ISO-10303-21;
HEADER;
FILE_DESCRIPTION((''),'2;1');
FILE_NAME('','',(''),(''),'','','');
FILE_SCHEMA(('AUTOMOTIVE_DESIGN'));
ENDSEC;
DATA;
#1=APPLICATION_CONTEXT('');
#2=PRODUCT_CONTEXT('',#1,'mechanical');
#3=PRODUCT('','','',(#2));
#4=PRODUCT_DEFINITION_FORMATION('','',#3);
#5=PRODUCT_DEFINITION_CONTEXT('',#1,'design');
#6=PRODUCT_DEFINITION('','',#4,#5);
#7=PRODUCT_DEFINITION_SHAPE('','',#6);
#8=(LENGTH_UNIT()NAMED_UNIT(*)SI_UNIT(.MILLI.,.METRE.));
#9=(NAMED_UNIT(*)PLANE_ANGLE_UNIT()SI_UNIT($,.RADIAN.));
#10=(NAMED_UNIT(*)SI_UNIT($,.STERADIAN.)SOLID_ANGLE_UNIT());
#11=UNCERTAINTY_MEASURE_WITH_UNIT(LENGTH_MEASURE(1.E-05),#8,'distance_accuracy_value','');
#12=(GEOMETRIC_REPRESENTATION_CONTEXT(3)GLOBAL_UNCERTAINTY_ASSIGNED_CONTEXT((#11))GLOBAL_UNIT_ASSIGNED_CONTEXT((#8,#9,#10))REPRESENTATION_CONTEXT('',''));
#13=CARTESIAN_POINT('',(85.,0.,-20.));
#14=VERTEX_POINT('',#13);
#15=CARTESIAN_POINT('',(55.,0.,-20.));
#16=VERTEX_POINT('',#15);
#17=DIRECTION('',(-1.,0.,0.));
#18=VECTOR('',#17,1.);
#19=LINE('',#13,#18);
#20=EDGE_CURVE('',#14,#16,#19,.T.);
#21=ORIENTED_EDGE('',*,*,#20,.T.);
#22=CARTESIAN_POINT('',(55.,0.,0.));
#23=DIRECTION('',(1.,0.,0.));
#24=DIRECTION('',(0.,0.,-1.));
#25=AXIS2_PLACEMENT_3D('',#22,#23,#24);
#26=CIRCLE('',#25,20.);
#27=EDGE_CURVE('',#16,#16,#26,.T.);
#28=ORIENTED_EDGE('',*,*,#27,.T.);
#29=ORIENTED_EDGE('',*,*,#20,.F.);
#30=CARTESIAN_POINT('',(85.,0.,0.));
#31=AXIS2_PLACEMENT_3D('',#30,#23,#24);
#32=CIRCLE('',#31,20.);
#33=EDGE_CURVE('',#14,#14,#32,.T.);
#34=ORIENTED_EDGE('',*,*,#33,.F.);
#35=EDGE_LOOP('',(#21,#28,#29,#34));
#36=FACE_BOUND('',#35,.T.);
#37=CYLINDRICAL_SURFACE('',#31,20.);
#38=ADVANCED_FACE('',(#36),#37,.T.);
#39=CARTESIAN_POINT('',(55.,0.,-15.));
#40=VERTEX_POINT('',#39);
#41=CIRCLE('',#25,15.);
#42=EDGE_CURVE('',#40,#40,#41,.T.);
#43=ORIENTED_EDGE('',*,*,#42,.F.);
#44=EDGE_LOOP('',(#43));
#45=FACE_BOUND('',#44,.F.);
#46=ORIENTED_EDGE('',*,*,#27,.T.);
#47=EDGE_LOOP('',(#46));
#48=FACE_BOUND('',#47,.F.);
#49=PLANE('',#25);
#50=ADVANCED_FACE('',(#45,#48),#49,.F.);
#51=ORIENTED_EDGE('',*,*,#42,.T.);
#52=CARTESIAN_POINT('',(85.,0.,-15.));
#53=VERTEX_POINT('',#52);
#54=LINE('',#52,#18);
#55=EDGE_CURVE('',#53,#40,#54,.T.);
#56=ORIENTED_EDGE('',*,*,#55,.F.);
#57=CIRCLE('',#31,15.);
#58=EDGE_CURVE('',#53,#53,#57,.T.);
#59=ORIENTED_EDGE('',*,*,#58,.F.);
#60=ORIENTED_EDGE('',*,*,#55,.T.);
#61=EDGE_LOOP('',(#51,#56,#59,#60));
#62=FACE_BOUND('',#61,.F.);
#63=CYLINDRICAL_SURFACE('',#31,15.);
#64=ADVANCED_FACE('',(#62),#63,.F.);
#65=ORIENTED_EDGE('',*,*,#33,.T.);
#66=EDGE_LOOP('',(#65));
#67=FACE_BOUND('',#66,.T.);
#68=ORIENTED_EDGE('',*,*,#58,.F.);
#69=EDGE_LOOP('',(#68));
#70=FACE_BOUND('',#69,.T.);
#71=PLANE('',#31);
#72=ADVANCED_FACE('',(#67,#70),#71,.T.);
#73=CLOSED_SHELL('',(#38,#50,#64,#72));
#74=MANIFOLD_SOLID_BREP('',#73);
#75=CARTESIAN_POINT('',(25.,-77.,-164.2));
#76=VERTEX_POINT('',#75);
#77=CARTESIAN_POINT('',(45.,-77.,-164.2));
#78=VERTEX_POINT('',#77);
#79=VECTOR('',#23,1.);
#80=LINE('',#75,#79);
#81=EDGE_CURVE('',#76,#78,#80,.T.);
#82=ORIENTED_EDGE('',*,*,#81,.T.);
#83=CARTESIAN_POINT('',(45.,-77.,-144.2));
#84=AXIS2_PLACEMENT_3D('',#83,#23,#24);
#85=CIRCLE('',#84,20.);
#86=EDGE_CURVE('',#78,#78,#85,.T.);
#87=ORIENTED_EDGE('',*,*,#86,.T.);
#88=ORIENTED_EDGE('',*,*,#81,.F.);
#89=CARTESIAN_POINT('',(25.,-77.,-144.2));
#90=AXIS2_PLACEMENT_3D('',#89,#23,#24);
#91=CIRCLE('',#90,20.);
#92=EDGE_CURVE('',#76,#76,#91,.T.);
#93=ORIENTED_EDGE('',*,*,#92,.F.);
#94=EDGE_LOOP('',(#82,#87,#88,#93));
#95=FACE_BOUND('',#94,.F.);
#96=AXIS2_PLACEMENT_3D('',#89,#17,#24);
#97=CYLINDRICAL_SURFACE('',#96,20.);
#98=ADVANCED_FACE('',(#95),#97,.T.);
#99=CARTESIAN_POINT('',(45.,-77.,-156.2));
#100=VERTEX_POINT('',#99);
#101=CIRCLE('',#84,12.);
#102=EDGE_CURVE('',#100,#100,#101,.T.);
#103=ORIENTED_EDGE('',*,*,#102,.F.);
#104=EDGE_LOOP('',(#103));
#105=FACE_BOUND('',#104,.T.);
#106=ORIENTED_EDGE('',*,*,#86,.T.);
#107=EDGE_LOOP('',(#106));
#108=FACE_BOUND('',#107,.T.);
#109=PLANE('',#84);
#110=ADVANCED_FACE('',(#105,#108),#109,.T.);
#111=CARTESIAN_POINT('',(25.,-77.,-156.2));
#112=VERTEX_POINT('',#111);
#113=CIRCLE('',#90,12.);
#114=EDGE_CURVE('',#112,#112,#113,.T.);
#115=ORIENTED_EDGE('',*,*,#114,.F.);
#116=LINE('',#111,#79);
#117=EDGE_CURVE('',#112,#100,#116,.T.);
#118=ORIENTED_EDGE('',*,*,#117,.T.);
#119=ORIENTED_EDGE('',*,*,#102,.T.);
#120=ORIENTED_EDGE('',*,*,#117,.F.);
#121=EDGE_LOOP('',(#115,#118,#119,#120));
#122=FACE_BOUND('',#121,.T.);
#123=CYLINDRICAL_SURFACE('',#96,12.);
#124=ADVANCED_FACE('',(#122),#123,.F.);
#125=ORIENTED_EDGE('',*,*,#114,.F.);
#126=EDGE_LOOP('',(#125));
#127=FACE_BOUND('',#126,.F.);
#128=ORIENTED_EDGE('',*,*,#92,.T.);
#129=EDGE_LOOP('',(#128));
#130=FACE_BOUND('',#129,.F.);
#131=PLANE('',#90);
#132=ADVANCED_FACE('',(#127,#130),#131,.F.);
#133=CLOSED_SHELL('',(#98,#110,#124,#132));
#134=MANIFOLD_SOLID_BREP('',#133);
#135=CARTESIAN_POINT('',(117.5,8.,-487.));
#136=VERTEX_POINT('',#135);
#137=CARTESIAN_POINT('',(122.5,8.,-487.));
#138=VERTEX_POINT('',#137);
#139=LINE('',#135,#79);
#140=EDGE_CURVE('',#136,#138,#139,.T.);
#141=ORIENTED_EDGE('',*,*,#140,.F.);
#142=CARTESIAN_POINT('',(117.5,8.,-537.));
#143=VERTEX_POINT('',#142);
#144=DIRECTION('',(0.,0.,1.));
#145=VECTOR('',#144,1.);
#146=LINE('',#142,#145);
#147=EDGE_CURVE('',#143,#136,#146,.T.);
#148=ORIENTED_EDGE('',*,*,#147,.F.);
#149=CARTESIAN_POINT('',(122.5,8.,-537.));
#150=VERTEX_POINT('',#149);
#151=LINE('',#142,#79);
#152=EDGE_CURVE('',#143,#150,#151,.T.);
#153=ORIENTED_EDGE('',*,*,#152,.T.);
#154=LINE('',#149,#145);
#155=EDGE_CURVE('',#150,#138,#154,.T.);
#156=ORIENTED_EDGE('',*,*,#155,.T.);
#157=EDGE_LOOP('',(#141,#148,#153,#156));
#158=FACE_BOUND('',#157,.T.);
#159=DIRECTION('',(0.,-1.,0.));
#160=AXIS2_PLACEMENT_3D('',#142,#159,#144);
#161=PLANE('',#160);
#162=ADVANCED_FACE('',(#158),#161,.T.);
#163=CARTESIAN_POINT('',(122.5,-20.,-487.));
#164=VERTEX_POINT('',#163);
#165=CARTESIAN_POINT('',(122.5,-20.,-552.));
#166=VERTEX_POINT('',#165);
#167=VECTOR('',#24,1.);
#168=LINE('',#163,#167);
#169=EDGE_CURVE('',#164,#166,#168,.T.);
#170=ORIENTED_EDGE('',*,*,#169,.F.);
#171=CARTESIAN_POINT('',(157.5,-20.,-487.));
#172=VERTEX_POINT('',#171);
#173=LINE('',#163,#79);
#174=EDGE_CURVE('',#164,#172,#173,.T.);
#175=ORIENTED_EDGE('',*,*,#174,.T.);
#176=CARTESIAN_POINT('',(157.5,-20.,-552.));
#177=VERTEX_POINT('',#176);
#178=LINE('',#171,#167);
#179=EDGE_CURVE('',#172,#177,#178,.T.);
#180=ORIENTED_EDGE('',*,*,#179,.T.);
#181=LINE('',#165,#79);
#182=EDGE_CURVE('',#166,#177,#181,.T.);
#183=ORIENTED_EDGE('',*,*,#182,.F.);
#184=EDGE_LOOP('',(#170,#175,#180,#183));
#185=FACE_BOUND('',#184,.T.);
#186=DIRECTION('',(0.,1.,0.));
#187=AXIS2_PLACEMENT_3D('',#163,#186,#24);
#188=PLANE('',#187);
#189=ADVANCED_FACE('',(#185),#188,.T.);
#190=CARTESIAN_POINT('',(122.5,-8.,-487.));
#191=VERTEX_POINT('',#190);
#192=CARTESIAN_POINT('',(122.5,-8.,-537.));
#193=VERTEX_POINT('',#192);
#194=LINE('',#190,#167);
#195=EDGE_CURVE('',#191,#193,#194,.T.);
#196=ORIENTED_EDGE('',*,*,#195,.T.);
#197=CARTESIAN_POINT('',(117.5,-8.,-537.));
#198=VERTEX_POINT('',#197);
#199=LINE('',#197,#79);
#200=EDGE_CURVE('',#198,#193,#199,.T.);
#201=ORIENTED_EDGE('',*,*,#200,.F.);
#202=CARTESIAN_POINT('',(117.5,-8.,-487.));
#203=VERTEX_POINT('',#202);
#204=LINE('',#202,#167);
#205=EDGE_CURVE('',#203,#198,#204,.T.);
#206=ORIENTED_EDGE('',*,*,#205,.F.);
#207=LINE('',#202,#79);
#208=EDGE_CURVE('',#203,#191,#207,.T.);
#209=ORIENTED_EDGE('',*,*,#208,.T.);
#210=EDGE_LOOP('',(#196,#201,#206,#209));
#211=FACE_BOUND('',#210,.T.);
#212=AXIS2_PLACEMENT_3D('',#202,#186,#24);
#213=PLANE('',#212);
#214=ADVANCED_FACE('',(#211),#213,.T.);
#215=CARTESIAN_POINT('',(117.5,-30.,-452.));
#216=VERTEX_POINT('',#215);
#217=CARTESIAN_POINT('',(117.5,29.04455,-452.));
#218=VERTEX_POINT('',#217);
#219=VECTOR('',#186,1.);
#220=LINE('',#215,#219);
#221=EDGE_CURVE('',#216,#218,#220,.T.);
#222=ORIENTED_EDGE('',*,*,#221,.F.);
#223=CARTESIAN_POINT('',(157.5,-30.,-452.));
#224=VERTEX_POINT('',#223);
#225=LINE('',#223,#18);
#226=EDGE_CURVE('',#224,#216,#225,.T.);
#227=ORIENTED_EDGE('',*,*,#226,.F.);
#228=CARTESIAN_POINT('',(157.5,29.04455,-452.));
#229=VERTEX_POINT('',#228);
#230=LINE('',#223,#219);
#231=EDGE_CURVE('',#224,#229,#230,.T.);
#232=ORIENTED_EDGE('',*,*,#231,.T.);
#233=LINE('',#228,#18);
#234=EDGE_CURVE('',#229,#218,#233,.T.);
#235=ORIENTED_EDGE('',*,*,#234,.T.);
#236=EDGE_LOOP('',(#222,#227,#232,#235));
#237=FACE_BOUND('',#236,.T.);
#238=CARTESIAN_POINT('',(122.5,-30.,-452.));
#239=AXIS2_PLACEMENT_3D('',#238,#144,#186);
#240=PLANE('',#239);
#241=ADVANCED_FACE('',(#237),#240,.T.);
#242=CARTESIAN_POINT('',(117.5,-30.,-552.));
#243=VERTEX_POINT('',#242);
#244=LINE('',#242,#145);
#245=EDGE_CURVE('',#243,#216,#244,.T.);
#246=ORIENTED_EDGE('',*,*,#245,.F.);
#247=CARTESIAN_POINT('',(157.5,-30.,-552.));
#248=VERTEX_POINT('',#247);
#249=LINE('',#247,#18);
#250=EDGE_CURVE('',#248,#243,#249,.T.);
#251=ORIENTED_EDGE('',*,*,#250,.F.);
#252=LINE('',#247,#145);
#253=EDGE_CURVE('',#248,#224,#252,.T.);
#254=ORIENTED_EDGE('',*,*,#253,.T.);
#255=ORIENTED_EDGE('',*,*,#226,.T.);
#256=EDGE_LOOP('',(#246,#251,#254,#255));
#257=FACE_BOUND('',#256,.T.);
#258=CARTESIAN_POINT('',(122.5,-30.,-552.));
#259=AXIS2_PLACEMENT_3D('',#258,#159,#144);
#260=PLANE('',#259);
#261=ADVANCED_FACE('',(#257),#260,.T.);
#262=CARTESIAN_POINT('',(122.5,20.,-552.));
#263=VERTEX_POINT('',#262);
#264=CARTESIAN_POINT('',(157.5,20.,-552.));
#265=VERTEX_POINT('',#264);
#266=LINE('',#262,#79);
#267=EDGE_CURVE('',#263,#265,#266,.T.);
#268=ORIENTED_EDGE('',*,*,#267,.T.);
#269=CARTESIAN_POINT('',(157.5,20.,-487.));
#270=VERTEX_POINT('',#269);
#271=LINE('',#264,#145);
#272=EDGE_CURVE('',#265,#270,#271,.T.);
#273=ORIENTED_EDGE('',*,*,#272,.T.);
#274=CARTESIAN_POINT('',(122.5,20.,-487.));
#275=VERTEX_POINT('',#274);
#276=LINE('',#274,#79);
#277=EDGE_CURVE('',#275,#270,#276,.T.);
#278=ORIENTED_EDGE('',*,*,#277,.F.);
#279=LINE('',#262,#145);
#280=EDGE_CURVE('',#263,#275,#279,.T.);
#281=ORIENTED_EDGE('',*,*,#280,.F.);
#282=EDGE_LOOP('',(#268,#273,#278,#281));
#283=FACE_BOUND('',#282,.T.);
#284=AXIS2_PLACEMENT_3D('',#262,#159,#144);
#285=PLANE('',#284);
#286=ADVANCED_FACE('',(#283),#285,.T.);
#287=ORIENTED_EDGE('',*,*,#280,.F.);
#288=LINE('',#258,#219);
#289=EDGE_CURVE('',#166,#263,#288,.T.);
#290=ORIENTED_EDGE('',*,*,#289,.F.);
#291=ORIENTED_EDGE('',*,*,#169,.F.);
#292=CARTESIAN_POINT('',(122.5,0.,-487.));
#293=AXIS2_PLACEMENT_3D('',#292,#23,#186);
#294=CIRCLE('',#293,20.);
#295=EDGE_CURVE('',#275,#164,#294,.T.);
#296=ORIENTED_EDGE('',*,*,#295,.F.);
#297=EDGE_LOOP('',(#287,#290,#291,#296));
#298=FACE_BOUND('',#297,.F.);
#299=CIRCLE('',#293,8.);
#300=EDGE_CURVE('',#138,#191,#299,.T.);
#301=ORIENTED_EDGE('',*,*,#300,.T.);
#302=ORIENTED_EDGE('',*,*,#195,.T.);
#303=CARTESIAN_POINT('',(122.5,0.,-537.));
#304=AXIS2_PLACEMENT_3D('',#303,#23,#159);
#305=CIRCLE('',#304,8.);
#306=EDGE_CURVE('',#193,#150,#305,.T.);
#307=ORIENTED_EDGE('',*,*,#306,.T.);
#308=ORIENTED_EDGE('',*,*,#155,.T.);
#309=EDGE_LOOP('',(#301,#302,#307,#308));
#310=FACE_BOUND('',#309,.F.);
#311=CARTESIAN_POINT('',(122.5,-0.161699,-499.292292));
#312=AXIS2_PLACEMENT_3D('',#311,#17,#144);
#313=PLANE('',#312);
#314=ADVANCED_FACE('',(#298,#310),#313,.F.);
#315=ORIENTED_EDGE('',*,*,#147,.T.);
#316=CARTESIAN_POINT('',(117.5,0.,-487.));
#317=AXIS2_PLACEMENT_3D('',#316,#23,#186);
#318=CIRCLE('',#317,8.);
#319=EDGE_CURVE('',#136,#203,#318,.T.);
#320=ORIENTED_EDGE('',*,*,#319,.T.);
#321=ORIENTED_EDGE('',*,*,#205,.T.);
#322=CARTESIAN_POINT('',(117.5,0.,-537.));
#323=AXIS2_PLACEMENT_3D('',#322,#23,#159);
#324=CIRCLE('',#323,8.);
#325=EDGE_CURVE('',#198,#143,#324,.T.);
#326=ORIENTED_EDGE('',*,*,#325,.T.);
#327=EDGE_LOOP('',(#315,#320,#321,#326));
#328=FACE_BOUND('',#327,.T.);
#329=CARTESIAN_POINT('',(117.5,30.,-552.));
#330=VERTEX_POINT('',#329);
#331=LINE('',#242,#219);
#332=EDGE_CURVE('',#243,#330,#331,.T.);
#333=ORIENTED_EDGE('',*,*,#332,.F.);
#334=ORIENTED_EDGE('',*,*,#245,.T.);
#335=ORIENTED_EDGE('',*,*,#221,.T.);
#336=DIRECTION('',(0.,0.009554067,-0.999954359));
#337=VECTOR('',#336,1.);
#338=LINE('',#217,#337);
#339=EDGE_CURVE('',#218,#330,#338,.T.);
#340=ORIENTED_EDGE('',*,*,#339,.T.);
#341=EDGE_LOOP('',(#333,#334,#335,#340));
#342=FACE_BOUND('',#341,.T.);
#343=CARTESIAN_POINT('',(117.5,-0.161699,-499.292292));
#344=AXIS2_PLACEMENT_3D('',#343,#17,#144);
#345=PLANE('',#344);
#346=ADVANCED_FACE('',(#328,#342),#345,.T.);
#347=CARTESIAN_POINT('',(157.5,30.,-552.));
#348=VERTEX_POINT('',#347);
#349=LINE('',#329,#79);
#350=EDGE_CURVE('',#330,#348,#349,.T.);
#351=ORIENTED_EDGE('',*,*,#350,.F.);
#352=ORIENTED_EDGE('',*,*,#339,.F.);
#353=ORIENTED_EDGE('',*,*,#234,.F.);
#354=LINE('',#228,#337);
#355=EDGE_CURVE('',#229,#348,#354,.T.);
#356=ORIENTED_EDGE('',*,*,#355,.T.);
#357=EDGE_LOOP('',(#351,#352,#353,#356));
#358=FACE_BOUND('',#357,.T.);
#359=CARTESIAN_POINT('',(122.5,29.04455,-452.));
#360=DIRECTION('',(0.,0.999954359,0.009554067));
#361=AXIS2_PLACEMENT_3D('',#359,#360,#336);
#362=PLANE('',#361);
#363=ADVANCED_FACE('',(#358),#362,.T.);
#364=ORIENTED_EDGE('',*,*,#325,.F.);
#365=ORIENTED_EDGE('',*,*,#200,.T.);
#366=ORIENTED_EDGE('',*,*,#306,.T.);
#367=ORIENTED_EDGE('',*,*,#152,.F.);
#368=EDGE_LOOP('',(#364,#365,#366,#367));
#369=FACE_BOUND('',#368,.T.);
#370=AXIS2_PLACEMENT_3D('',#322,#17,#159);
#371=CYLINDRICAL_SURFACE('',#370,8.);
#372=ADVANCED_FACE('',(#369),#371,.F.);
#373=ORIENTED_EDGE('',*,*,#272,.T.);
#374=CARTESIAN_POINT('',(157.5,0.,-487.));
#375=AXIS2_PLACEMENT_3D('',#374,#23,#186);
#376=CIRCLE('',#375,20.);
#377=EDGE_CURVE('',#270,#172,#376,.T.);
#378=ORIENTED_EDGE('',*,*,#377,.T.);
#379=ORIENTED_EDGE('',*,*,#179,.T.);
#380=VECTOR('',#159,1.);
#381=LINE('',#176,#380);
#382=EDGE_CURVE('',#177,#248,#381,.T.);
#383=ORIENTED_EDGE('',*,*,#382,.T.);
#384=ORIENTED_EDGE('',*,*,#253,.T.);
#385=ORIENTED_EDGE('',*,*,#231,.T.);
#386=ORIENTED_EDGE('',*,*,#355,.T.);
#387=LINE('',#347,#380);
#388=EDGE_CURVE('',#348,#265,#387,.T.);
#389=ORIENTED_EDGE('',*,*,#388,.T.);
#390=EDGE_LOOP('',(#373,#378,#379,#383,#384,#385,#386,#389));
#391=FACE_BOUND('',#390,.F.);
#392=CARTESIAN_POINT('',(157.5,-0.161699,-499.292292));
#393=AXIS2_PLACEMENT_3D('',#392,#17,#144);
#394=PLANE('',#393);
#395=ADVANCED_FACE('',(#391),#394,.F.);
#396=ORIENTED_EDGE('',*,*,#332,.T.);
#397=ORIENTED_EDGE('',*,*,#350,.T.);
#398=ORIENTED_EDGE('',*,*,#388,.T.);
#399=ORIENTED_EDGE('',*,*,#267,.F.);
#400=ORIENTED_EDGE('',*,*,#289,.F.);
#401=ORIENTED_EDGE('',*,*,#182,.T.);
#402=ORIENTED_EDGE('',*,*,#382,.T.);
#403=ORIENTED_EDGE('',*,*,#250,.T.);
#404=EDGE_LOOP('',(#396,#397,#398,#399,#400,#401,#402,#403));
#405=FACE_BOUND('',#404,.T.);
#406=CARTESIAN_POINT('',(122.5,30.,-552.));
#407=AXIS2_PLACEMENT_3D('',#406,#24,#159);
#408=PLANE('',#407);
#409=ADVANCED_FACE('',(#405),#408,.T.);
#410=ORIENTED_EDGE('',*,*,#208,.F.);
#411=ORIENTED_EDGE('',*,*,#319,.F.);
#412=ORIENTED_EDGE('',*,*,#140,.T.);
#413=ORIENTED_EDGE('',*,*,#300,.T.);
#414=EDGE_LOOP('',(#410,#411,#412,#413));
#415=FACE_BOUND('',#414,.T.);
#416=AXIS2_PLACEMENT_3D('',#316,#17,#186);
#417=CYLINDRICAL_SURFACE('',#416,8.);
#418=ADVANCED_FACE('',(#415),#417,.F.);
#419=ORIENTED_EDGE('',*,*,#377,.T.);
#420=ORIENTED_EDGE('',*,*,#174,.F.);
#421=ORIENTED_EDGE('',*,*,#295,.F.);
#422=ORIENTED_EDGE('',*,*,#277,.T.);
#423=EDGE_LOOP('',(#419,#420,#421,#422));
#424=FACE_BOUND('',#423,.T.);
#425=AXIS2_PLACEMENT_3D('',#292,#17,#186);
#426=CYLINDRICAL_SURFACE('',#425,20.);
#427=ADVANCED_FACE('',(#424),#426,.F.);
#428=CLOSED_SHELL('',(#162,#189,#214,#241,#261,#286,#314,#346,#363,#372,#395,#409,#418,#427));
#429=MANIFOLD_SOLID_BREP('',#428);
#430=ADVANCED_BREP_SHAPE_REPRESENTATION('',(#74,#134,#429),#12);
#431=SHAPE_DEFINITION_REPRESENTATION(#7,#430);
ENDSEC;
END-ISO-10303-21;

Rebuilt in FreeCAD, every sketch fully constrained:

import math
import FreeCAD as App
import Part
import Sketcher
from FreeCAD import Vector

doc = App.newDocument("Part")
body = doc.addObject("PartDesign::Body", "Body")

sketch1 = body.newObject("Sketcher::SketchObject", "Sketch")
sketch1.AttachmentSupport = (doc.getObject("YZ_Plane"), [""])
sketch1.MapMode = "FlatFace"
sketch1.AttachmentOffset = App.Placement(Vector(0, 0, 117.5), App.Rotation())
sketch1.addGeometry(Part.LineSegment(Vector(-30, -552, 0), Vector(30, -552, 0)), False)
sketch1.addGeometry(Part.LineSegment(Vector(30, -552, 0), Vector(29, -452, 0)), False)
sketch1.addGeometry(Part.LineSegment(Vector(29, -452, 0), Vector(-30, -452, 0)), False)
sketch1.addGeometry(Part.LineSegment(Vector(-30, -452, 0), Vector(-30, -552, 0)), False)
sketch1.addGeometry(Part.LineSegment(Vector(-8, -537, 0), Vector(-8, -487, 0)), False)
sketch1.addGeometry(Part.ArcOfCircle(Part.Circle(Vector(0, -487, 0), Vector(0, 0, 1), 8), math.radians(0), math.radians(180)), False)
sketch1.addGeometry(Part.LineSegment(Vector(8, -487, 0), Vector(8, -537, 0)), False)
sketch1.addGeometry(Part.ArcOfCircle(Part.Circle(Vector(0, -537, 0), Vector(0, 0, 1), 8), math.radians(180), math.radians(360)), False)
sketch1.addConstraint(Sketcher.Constraint("Coincident", 0, 2, 1, 1))
sketch1.addConstraint(Sketcher.Constraint("Coincident", 1, 2, 2, 1))
sketch1.addConstraint(Sketcher.Constraint("Coincident", 2, 2, 3, 1))
sketch1.addConstraint(Sketcher.Constraint("Coincident", 3, 2, 0, 1))
sketch1.addConstraint(Sketcher.Constraint("Tangent", 4, 2, 5, 2))
sketch1.addConstraint(Sketcher.Constraint("Tangent", 5, 1, 6, 1))
sketch1.addConstraint(Sketcher.Constraint("Tangent", 6, 2, 7, 2))
sketch1.addConstraint(Sketcher.Constraint("Tangent", 7, 1, 4, 1))
sketch1.addConstraint(Sketcher.Constraint("Horizontal", 0))
sketch1.addConstraint(Sketcher.Constraint("Horizontal", 2))
sketch1.addConstraint(Sketcher.Constraint("Vertical", 3))
sketch1.addConstraint(Sketcher.Constraint("Vertical", 4))
sketch1.addConstraint(Sketcher.Constraint("Vertical", 6))
sketch1.addConstraint(Sketcher.Constraint("PointOnObject", 5, 3, -2))
sketch1.addConstraint(Sketcher.Constraint("Radius", 5, 8.0))
sketch1.addConstraint(Sketcher.Constraint("DistanceX", 0, 1, 0, 2, 60.0))
sketch1.addConstraint(Sketcher.Constraint("DistanceY", 3, 2, 3, 1, 100.0))
sketch1.addConstraint(Sketcher.Constraint("DistanceY", 4, 1, 4, 2, 50.0))
sketch1.addConstraint(Sketcher.Constraint("DistanceY", 5, 3, -1, 1, 487.0))
sketch1.addConstraint(Sketcher.Constraint("DistanceX", -1, 1, 0, 2, 30.0))
sketch1.addConstraint(Sketcher.Constraint("DistanceY", 0, 2, -1, 1, 552.0))
sketch1.addConstraint(Sketcher.Constraint("DistanceX", 2, 2, 2, 1, 59.04455))
pad1 = body.newObject("PartDesign::Pad", "Pad")
pad1.Profile = sketch1
pad1.Length = 5

sketch2 = body.newObject("Sketcher::SketchObject", "Sketch001")
sketch2.AttachmentSupport = (doc.getObject("YZ_Plane"), [""])
sketch2.MapMode = "FlatFace"
sketch2.AttachmentOffset = App.Placement(Vector(0, 0, 122.5), App.Rotation())
sketch2.addGeometry(Part.ArcOfCircle(Part.Circle(Vector(0, -487, 0), Vector(0, 0, 1), 20), math.radians(0), math.radians(180)), False)
sketch2.addGeometry(Part.LineSegment(Vector(20, -487, 0), Vector(20, -552, 0)), False)
sketch2.addGeometry(Part.LineSegment(Vector(20, -552, 0), Vector(30, -552, 0)), False)
sketch2.addGeometry(Part.LineSegment(Vector(30, -552, 0), Vector(29, -452, 0)), False)
sketch2.addGeometry(Part.LineSegment(Vector(29, -452, 0), Vector(-30, -452, 0)), False)
sketch2.addGeometry(Part.LineSegment(Vector(-30, -452, 0), Vector(-30, -552, 0)), False)
sketch2.addGeometry(Part.LineSegment(Vector(-30, -552, 0), Vector(-20, -552, 0)), False)
sketch2.addGeometry(Part.LineSegment(Vector(-20, -552, 0), Vector(-20, -487, 0)), False)
sketch2.addConstraint(Sketcher.Constraint("Tangent", 0, 1, 1, 1))
sketch2.addConstraint(Sketcher.Constraint("Coincident", 1, 2, 2, 1))
sketch2.addConstraint(Sketcher.Constraint("Coincident", 2, 2, 3, 1))
sketch2.addConstraint(Sketcher.Constraint("Coincident", 3, 2, 4, 1))
sketch2.addConstraint(Sketcher.Constraint("Coincident", 4, 2, 5, 1))
sketch2.addConstraint(Sketcher.Constraint("Coincident", 5, 2, 6, 1))
sketch2.addConstraint(Sketcher.Constraint("Coincident", 6, 2, 7, 1))
sketch2.addConstraint(Sketcher.Constraint("Tangent", 7, 2, 0, 2))
sketch2.addConstraint(Sketcher.Constraint("Vertical", 1))
sketch2.addConstraint(Sketcher.Constraint("Horizontal", 2))
sketch2.addConstraint(Sketcher.Constraint("Horizontal", 4))
sketch2.addConstraint(Sketcher.Constraint("Vertical", 5))
sketch2.addConstraint(Sketcher.Constraint("Horizontal", 6))
sketch2.addConstraint(Sketcher.Constraint("Vertical", 7))
sketch2.addConstraint(Sketcher.Constraint("Symmetric", 2, 2, 5, 2, -2))
sketch2.addConstraint(Sketcher.Constraint("PointOnObject", 0, 3, -2))
sketch2.addConstraint(Sketcher.Constraint("Radius", 0, 20.0))
sketch2.addConstraint(Sketcher.Constraint("DistanceX", 2, 1, 2, 2, 10.0))
sketch2.addConstraint(Sketcher.Constraint("DistanceY", 1, 2, 1, 1, 65.0))
sketch2.addConstraint(Sketcher.Constraint("DistanceY", 5, 2, 5, 1, 100.0))
sketch2.addConstraint(Sketcher.Constraint("DistanceY", 0, 3, -1, 1, 487.0))
sketch2.addConstraint(Sketcher.Constraint("DistanceX", 4, 2, 4, 1, 59.04455))
pad2 = body.newObject("PartDesign::Pad", "Pad001")
pad2.Profile = sketch2
pad2.Length = 35
body2 = doc.addObject("PartDesign::Body", "Body001")

sketch3 = body2.newObject("Sketcher::SketchObject", "Sketch002")
sketch3.AttachmentSupport = (doc.getObject("YZ_Plane001"), [""])
sketch3.MapMode = "FlatFace"
sketch3.AttachmentOffset = App.Placement(Vector(0, 0, 85), App.Rotation())
sketch3.addGeometry(Part.Circle(Vector(0, 0, 0), Vector(0, 0, 1), 20), False)
sketch3.addGeometry(Part.Circle(Vector(0, 0, 0), Vector(0, 0, 1), 15), False)
sketch3.addConstraint(Sketcher.Constraint("Coincident", 0, 3, -1, 1))
sketch3.addConstraint(Sketcher.Constraint("Coincident", 1, 3, -1, 1))
sketch3.addConstraint(Sketcher.Constraint("Diameter", 0, 40.0))
sketch3.addConstraint(Sketcher.Constraint("Diameter", 1, 30.0))
pad3 = body2.newObject("PartDesign::Pad", "Pad002")
pad3.Profile = sketch3
pad3.Length = 30
pad3.Reversed = True
body3 = doc.addObject("PartDesign::Body", "Body002")

sketch4 = body3.newObject("Sketcher::SketchObject", "Sketch003")
sketch4.AttachmentSupport = (doc.getObject("YZ_Plane002"), [""])
sketch4.MapMode = "FlatFace"
sketch4.AttachmentOffset = App.Placement(Vector(0, 0, 25), App.Rotation())
sketch4.addGeometry(Part.Circle(Vector(-77, -144, 0), Vector(0, 0, 1), 20), False)
sketch4.addGeometry(Part.Circle(Vector(-77, -144, 0), Vector(0, 0, 1), 12), False)
sketch4.addConstraint(Sketcher.Constraint("Coincident", 1, 3, 0, 3))
sketch4.addConstraint(Sketcher.Constraint("Diameter", 0, 40.0))
sketch4.addConstraint(Sketcher.Constraint("Diameter", 1, 24.0))
sketch4.addConstraint(Sketcher.Constraint("DistanceX", 0, 3, -1, 1, 77.0))
sketch4.addConstraint(Sketcher.Constraint("DistanceY", 0, 3, -1, 1, 144.2))
pad4 = body3.newObject("PartDesign::Pad", "Pad003")
pad4.Profile = sketch4
pad4.Length = 20

doc.recompute()
